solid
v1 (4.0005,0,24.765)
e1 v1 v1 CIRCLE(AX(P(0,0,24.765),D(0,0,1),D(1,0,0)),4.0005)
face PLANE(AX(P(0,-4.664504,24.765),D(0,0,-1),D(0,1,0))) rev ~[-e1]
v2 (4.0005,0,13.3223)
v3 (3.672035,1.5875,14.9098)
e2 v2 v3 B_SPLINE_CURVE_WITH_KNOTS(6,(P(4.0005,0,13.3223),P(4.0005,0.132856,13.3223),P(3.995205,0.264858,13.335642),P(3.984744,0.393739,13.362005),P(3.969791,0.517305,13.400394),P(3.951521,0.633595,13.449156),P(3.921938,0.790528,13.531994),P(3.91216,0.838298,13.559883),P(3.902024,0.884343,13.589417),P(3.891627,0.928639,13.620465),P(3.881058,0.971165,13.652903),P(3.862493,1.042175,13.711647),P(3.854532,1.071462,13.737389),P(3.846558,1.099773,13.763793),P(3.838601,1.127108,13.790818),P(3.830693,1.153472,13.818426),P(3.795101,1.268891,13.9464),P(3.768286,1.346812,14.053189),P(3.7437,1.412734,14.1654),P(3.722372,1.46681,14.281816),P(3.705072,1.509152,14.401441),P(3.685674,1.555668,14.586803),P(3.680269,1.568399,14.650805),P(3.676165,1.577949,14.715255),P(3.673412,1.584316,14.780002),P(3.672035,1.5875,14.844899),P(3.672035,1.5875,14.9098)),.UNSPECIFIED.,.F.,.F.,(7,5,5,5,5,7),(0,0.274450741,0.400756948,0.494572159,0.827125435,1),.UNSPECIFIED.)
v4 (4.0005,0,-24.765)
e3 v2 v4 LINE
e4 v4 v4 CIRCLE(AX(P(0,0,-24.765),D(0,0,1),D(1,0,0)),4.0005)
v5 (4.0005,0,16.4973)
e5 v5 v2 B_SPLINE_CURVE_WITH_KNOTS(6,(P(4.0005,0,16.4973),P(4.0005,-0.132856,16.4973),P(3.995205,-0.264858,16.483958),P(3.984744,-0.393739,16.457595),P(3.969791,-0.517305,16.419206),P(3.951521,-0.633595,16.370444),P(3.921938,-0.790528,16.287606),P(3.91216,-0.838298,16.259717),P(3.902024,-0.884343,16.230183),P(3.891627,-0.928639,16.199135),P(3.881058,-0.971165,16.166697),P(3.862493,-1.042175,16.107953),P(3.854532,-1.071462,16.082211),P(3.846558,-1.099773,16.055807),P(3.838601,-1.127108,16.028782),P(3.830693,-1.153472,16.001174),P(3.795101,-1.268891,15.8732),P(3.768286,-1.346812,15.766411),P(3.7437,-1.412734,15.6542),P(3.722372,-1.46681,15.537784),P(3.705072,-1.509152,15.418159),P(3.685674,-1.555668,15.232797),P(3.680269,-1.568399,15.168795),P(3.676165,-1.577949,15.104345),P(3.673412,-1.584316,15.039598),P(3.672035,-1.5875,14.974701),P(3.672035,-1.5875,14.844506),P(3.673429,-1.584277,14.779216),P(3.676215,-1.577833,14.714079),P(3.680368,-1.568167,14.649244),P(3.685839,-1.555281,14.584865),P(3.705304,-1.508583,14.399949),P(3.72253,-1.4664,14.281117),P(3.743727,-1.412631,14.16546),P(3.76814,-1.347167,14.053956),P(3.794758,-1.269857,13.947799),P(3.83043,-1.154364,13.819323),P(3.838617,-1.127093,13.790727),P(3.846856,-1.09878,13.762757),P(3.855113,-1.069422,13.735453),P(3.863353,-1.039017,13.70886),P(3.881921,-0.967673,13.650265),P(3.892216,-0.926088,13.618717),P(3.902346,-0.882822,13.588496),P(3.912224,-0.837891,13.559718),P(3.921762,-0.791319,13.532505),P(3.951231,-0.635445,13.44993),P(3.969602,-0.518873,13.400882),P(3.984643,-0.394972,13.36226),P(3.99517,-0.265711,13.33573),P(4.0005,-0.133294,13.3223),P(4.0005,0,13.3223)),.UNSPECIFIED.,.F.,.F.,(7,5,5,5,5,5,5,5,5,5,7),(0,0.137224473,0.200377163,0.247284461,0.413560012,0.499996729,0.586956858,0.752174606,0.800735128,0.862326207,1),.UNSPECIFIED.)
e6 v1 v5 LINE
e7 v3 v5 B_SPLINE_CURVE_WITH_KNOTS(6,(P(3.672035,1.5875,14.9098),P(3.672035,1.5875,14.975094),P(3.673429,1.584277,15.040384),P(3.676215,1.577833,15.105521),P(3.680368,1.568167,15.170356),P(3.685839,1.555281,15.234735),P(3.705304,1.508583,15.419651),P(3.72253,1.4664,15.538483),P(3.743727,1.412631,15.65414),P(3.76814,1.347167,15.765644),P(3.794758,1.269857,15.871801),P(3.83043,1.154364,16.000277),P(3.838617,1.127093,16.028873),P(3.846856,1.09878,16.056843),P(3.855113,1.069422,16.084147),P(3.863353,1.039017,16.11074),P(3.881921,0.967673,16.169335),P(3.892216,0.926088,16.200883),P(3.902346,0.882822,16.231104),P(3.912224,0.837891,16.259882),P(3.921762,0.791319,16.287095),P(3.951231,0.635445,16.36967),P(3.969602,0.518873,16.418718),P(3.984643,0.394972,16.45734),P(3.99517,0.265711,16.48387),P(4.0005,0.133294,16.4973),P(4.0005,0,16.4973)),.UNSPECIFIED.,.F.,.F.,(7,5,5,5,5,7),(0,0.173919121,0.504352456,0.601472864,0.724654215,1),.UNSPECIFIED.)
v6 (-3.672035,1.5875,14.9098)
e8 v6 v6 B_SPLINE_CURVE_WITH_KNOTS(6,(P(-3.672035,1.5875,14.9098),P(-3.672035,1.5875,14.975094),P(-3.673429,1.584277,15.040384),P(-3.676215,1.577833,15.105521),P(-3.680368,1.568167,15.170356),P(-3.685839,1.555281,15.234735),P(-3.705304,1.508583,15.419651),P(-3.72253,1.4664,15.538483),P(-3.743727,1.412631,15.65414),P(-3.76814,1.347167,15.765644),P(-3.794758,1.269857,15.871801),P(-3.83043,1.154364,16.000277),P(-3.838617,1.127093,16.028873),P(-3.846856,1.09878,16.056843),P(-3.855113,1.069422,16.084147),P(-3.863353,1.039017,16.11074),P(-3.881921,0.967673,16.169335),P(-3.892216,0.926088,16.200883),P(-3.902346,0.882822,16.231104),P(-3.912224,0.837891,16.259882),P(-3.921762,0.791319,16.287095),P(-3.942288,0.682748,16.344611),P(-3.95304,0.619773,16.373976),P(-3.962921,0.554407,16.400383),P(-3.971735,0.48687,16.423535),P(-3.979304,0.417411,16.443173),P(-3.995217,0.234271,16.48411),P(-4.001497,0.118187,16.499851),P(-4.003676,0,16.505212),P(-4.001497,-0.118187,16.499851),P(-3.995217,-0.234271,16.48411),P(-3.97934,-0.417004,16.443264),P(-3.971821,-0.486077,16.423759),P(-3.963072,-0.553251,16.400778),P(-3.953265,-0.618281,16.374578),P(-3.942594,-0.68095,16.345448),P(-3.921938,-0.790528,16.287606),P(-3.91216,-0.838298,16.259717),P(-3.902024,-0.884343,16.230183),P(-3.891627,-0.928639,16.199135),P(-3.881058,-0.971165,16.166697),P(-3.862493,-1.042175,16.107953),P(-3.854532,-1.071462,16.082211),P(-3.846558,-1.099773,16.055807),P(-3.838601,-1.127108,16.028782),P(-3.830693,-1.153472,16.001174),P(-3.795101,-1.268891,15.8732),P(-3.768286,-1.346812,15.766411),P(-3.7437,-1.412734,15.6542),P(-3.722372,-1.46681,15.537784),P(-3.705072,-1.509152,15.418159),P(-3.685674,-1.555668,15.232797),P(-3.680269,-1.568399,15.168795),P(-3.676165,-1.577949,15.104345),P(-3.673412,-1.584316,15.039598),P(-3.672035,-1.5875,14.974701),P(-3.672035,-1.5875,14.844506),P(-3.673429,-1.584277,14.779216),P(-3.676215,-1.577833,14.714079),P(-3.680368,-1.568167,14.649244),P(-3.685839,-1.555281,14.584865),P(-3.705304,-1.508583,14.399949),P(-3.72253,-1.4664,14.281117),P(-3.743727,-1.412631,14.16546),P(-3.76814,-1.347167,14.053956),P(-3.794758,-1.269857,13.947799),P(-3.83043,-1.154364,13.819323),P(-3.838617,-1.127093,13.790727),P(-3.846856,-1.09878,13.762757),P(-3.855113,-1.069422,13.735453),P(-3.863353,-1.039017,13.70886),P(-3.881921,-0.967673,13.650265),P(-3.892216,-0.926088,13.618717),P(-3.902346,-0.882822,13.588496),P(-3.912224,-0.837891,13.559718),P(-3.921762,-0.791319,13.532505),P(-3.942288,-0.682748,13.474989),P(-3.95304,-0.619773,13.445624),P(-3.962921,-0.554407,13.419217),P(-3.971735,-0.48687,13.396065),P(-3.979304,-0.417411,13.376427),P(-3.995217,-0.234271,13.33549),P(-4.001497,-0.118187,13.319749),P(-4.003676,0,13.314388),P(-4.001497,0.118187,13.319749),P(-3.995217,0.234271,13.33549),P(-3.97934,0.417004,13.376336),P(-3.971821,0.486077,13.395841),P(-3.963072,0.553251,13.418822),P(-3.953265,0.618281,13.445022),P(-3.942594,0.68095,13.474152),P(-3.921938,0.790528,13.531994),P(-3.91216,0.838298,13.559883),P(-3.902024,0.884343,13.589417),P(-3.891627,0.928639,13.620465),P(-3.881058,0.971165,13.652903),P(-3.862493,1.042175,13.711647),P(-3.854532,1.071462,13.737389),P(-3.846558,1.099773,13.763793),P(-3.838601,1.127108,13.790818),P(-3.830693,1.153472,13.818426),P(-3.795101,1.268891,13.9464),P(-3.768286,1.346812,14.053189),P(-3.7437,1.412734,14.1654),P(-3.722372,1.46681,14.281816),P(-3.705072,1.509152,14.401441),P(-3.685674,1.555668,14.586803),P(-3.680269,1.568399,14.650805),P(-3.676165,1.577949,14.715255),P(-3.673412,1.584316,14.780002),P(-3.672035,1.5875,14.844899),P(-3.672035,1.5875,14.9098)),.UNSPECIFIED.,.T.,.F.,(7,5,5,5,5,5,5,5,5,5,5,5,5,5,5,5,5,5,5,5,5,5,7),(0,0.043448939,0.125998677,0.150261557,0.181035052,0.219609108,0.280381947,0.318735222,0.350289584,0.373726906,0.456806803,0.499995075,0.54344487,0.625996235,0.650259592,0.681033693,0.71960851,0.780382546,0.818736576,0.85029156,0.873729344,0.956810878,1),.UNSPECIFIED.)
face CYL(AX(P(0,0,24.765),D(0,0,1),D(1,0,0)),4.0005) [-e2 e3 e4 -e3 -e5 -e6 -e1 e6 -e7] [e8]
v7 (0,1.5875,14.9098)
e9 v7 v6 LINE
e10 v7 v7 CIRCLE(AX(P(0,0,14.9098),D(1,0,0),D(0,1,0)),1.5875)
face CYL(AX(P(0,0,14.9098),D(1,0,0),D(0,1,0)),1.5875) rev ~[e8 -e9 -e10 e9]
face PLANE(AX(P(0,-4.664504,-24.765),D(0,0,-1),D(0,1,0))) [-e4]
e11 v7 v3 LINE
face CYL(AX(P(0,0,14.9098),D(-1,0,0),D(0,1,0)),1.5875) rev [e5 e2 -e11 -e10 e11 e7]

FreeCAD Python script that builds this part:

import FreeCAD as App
import Part
import Sketcher
Q = App.Units.Quantity

doc = App.newDocument("Part")
body = doc.addObject("PartDesign::Body", "Body")

sketch1 = doc.addObject("Sketcher::SketchObject", "Sketch")
body.addObject(sketch1)
sketch1.AttachmentSupport = (doc.YZ_Plane, [""])
sketch1.MapMode = "FlatFace"
sketch1.addGeometry([
    Part.LineSegment(App.Vector(-4.7, 24.8, 0), App.Vector(-4.7, -24.8, 0)),
    Part.LineSegment(App.Vector(-4.7, -24.8, 0), App.Vector(4.7, -24.8, 0)),
    Part.LineSegment(App.Vector(4.7, -24.8, 0), App.Vector(4.7, 24.8, 0)),
    Part.LineSegment(App.Vector(4.7, 24.8, 0), App.Vector(-4.7, 24.8, 0)),
    Part.Circle(App.Vector(0, 14.9, 0), App.Vector(0, 0, 1), 1.6),
], False)
sketch1.addConstraint([
    Sketcher.Constraint("Coincident", 0, 2, 1, 1),
    Sketcher.Constraint("Coincident", 1, 2, 2, 1),
    Sketcher.Constraint("Coincident", 2, 2, 3, 1),
    Sketcher.Constraint("Coincident", 3, 2, 0, 1),
    Sketcher.Constraint("Vertical", 0),
    Sketcher.Constraint("Horizontal", 1),
    Sketcher.Constraint("Vertical", 2),
    Sketcher.Constraint("Horizontal", 3),
    Sketcher.Constraint("Symmetric", 0, 2, 2, 2, -1, 1),
    Sketcher.Constraint("PointOnObject", 4, 3, -2),
    Sketcher.Constraint("Diameter", 4, Q("0.125 in")),
    Sketcher.Constraint("DistanceY", 0, 2, 0, 1, Q("1.95 in")),
    Sketcher.Constraint("DistanceY", -1, 1, 4, 3, Q("0.587 in")),
    Sketcher.Constraint("DistanceX", 1, 1, 1, 2, Q("9.329008 mm")),
])
pad1 = doc.addObject("PartDesign::Pad", "Pad")
body.addObject(pad1)
pad1.Profile = sketch1
pad1.Type = "TwoLengths"
pad1.Length = Q("0.19 in")
pad1.Length2 = Q("0.16 in")

sketch2 = doc.addObject("Sketcher::SketchObject", "Sketch001")
body.addObject(sketch2)
sketch2.AttachmentSupport = (doc.XY_Plane, [""])
sketch2.MapMode = "FlatFace"
sketch2.AttachmentOffset = App.Placement(App.Vector(0, 0, 0.975 * 25.4), App.Rotation())
sketch2.addGeometry([
    Part.LineSegment(App.Vector(-4.1, 4.7, 0), App.Vector(-4.1, -4.7, 0)),
    Part.LineSegment(App.Vector(-4.1, -4.7, 0), App.Vector(4.8, -4.7, 0)),
    Part.LineSegment(App.Vector(4.8, -4.7, 0), App.Vector(4.8, 4.7, 0)),
    Part.LineSegment(App.Vector(4.8, 4.7, 0), App.Vector(-4.1, 4.7, 0)),
    Part.Circle(App.Vector(0, 0, 0), App.Vector(0, 0, 1), 4),
], False)
sketch2.addConstraint([
    Sketcher.Constraint("Coincident", 0, 2, 1, 1),
    Sketcher.Constraint("Coincident", 1, 2, 2, 1),
    Sketcher.Constraint("Coincident", 2, 2, 3, 1),
    Sketcher.Constraint("Coincident", 3, 2, 0, 1),
    Sketcher.Constraint("Vertical", 0),
    Sketcher.Constraint("Horizontal", 1),
    Sketcher.Constraint("Vertical", 2),
    Sketcher.Constraint("Horizontal", 3),
    Sketcher.Constraint("Coincident", 4, 3, -1, 1),
    Sketcher.Constraint("Diameter", 4, Q("0.315 in")),
    Sketcher.Constraint("DistanceX", 1, 1, 1, 2, Q("0.35 in")),
    Sketcher.Constraint("DistanceX", 0, 2, -1, 1, Q("0.16 in")),
    Sketcher.Constraint("DistanceY", 0, 2, 0, 1, Q("9.329008 mm")),
    Sketcher.Constraint("DistanceY", 0, 2, -1, 1, Q("4.664504 mm")),
])
pocket1 = doc.addObject("PartDesign::Pocket", "Pocket")
body.addObject(pocket1)
pocket1.Profile = sketch2
pocket1.Length = Q("1.95 in")

doc.recompute()
